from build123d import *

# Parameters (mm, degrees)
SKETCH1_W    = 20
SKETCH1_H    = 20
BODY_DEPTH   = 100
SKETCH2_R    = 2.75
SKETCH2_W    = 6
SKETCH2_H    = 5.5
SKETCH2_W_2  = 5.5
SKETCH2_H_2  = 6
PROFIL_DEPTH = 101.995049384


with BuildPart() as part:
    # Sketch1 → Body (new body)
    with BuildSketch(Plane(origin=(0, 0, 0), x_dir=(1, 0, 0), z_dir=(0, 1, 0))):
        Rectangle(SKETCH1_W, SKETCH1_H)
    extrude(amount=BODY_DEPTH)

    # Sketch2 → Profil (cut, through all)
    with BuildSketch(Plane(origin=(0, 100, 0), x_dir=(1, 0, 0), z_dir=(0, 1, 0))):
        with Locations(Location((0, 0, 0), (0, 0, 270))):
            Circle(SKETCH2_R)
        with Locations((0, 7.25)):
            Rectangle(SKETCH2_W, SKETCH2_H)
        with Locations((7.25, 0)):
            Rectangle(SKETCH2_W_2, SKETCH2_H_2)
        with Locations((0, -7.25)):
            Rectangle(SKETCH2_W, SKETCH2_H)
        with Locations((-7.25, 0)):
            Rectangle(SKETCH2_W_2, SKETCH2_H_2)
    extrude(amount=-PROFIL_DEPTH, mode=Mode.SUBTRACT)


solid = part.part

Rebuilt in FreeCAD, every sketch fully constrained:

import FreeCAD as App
import Part
import Sketcher

V = App.Vector


def add_polygon(sketch, points):
    """Adds a closed chain of lines whose ends are joined by coincident constraints."""
    first, n = sketch.GeometryCount, len(points)
    for a, b in zip(points, points[1:] + points[:1]):
        sketch.addGeometry(Part.LineSegment(App.Vector(*a, 0), App.Vector(*b, 0)), False)
    for i in range(n):
        sketch.addConstraint(Sketcher.Constraint("Coincident", first + i, 2, first + (i + 1) % n, 1))

doc = App.newDocument("Part")
body = doc.addObject("PartDesign::Body", "Body")

# Sketch on XZ plane
sketch1 = body.newObject("Sketcher::SketchObject", "Sketch")
sketch1.AttachmentSupport = (doc.getObject("XZ_Plane"), [""])
sketch1.MapMode = "FlatFace"
add_polygon(sketch1, [(-10, -10), (-10, 10), (10, 10), (10, -10)])  # lines 0-3
sketch1.addConstraint([
    Sketcher.Constraint("Vertical", 0),
    Sketcher.Constraint("Horizontal", 1),
    Sketcher.Constraint("Vertical", 2),
    Sketcher.Constraint("Horizontal", 3),
    Sketcher.Constraint("Symmetric", 0, 2, 2, 2, -1, 1),
    Sketcher.Constraint("Equal", 3, 0),
    Sketcher.Constraint("DistanceX", 1, 1, 1, 2, 20.0),
])
pad1 = body.newObject("PartDesign::Pad", "Pad")
pad1.Profile = sketch1
pad1.Length = 100
pad1.Reversed = True

# Sketch on XZ plane
sketch2 = body.newObject("Sketcher::SketchObject", "Sketch001")
sketch2.AttachmentSupport = (doc.getObject("XZ_Plane"), [""])
sketch2.MapMode = "FlatFace"
sketch2.AttachmentOffset = App.Placement(V(0, 0, -100), App.Rotation())
sketch2.addGeometry(Part.Circle(V(0, 0, 0), V(0, 0, 1), 2.8), False)  # 0
add_polygon(sketch2, [(-3, -10), (-3, -4.5), (3, -4.5), (3, -10)])  # lines 1-4
add_polygon(sketch2, [(4.5, -3), (4.5, 3), (10, 3), (10, -3)])  # lines 5-8
add_polygon(sketch2, [(-3, 4.5), (-3, 10), (3, 10), (3, 4.5)])  # lines 9-12
add_polygon(sketch2, [(-10, -3), (-10, 3), (-4.5, 3), (-4.5, -3)])  # lines 13-16
sketch2.addConstraint([
    Sketcher.Constraint("Vertical", 1),
    Sketcher.Constraint("Horizontal", 2),
    Sketcher.Constraint("Vertical", 3),
    Sketcher.Constraint("Horizontal", 4),
    Sketcher.Constraint("Vertical", 5),
    Sketcher.Constraint("Horizontal", 6),
    Sketcher.Constraint("Vertical", 7),
    Sketcher.Constraint("Horizontal", 8),
    Sketcher.Constraint("Vertical", 9),
    Sketcher.Constraint("Horizontal", 10),
    Sketcher.Constraint("Vertical", 11),
    Sketcher.Constraint("Horizontal", 12),
    Sketcher.Constraint("Vertical", 13),
    Sketcher.Constraint("Horizontal", 14),
    Sketcher.Constraint("Vertical", 15),
    Sketcher.Constraint("Horizontal", 16),
    Sketcher.Constraint("Coincident", 0, 3, -1, 1),
    Sketcher.Constraint("Symmetric", 3, 2, 9, 2, -1, 1),
    Sketcher.Constraint("Symmetric", 1, 2, 11, 2, -1, 1),
    Sketcher.Constraint("Symmetric", 7, 2, 13, 2, -1, 1),
    Sketcher.Constraint("Symmetric", 5, 2, 15, 2, -1, 1),
    Sketcher.Constraint("Horizontal", 6, 2, 13, 2),
    Sketcher.Constraint("Vertical", 4, 2, 9, 2),
    Sketcher.Constraint("Equal", 16, 1),
    Sketcher.Constraint("Equal", 12, 5),
    Sketcher.Constraint("Diameter", 0, 5.5),
    Sketcher.Constraint("DistanceX", 2, 1, 2, 2, 6.0),
    Sketcher.Constraint("DistanceX", 6, 1, 6, 2, 5.5),
    Sketcher.Constraint("DistanceY", 3, 2, -1, 1, 10.0),
    Sketcher.Constraint("DistanceX", -1, 1, 6, 2, 10.0),
])
pocket1 = body.newObject("PartDesign::Pocket", "Pocket")
pocket1.Profile = sketch2
pocket1.Type = "ThroughAll"
pocket1.Reversed = True

doc.recompute()
